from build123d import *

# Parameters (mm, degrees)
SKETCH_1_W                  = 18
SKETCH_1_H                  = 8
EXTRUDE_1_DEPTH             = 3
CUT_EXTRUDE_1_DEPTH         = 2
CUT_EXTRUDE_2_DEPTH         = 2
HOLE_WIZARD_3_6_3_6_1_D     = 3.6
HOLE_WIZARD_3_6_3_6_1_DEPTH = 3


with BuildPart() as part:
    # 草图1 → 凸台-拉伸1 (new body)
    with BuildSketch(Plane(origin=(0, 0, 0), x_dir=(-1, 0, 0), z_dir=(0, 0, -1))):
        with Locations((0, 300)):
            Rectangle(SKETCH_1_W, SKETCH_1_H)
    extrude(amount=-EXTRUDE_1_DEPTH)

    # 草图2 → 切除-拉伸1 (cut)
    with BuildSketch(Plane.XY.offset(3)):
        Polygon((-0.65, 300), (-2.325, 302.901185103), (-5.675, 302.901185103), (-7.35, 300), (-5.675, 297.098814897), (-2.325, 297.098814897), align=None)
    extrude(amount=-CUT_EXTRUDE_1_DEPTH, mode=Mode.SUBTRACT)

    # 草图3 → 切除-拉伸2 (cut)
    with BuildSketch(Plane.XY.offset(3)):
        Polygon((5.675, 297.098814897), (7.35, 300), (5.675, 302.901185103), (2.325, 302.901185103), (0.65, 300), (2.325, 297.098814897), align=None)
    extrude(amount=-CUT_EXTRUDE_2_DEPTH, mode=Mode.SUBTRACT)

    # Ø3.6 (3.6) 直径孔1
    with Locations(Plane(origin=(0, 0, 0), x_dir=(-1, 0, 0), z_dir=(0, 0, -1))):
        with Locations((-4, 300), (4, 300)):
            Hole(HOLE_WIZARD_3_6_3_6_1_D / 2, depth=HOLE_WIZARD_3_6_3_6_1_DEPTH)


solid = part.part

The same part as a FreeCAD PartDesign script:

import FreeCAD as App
import Part
import Sketcher

V = App.Vector
Q = App.Units.Quantity


def add_polygon(sketch, points):
    """Adds a closed chain of lines whose ends are joined by coincident constraints."""
    first, n = sketch.GeometryCount, len(points)
    for a, b in zip(points, points[1:] + points[:1]):
        sketch.addGeometry(Part.LineSegment(App.Vector(*a, 0), App.Vector(*b, 0)), False)
    for i in range(n):
        sketch.addConstraint(Sketcher.Constraint("Coincident", first + i, 2, first + (i + 1) % n, 1))

doc = App.newDocument("Part")
body = doc.addObject("PartDesign::Body", "Body")

sketch1 = body.newObject("Sketcher::SketchObject", "Sketch")
sketch1.AttachmentSupport = (doc.getObject("XY_Plane"), [""])
sketch1.MapMode = "FlatFace"
add_polygon(sketch1, [(9, 304), (9, 296), (-9, 296), (-9, 304)])
sketch1.addConstraint([
    Sketcher.Constraint("Vertical", 0),
    Sketcher.Constraint("Horizontal", 1),
    Sketcher.Constraint("Vertical", 2),
    Sketcher.Constraint("Horizontal", 3),
    Sketcher.Constraint("DistanceX", 1, 2, 1, 1, Q("18 mm")),
    Sketcher.Constraint("DistanceY", 0, 2, 0, 1, Q("8 mm")),
    Sketcher.Constraint("DistanceX", -1, 1, 0, 2, Q("9 mm")),
    Sketcher.Constraint("DistanceY", -1, 1, 0, 2, Q("296 mm")),
])
pad1 = body.newObject("PartDesign::Pad", "Pad")
pad1.Profile = sketch1
pad1.Length = 3

sketch2 = body.newObject("Sketcher::SketchObject", "Sketch001")
sketch2.AttachmentSupport = (doc.getObject("XY_Plane"), [""])
sketch2.MapMode = "FlatFace"
sketch2.AttachmentOffset = App.Placement(V(0, 0, 3), App.Rotation())
add_polygon(sketch2, [(-0.65, 300), (-2.325, 302.901185), (-5.675, 302.901185), (-7.35, 300), (-5.675, 297.098815), (-2.325, 297.098815)])
sketch2.addConstraint([
    Sketcher.Constraint("Horizontal", 1),
    Sketcher.Constraint("Horizontal", 4),
    Sketcher.Constraint("Parallel", 0, 3),
    Sketcher.Constraint("Parallel", 2, 5),
    Sketcher.Constraint("Horizontal", 2, 2, 5, 2),
    Sketcher.Constraint("Vertical", 1, 2, 3, 2),
    Sketcher.Constraint("Vertical", 0, 2, 4, 2),
    Sketcher.Constraint("Angle", 0, Q("120 deg")),
    Sketcher.Constraint("DistanceY", -1, 1, 2, 2, Q("300 mm")),
    Sketcher.Constraint("DistanceX", 1, 2, 1, 1, Q("3.35 mm")),
    Sketcher.Constraint("DistanceX", 2, 2, 5, 2, Q("6.7 mm")),
    Sketcher.Constraint("DistanceX", 2, 2, -1, 1, Q("7.35 mm")),
])
pocket1 = body.newObject("PartDesign::Pocket", "Pocket")
pocket1.Profile = sketch2
pocket1.Length = 2

sketch3 = body.newObject("Sketcher::SketchObject", "Sketch002")
sketch3.AttachmentSupport = (doc.getObject("XY_Plane"), [""])
sketch3.MapMode = "FlatFace"
sketch3.AttachmentOffset = App.Placement(V(0, 0, 3), App.Rotation())
add_polygon(sketch3, [(5.675, 297.098815), (7.35, 300), (5.675, 302.901185), (2.325, 302.901185), (0.65, 300), (2.325, 297.098815)])
sketch3.addConstraint([
    Sketcher.Constraint("Horizontal", 2),
    Sketcher.Constraint("Horizontal", 5),
    Sketcher.Constraint("Parallel", 0, 3),
    Sketcher.Constraint("Parallel", 1, 4),
    Sketcher.Constraint("Horizontal", 0, 2, 3, 2),
    Sketcher.Constraint("Vertical", 2, 2, 4, 2),
    Sketcher.Constraint("Vertical", 1, 2, 5, 2),
    Sketcher.Constraint("Angle", 0, Q("60 deg")),
    Sketcher.Constraint("DistanceY", -1, 1, 0, 2, Q("300 mm")),
    Sketcher.Constraint("DistanceX", 2, 2, 2, 1, Q("3.35 mm")),
    Sketcher.Constraint("DistanceX", 3, 2, 0, 2, Q("6.7 mm")),
    Sketcher.Constraint("DistanceX", -1, 1, 0, 2, Q("7.35 mm")),
])
pocket2 = body.newObject("PartDesign::Pocket", "Pocket001")
pocket2.Profile = sketch3
pocket2.Length = 2

sketch4 = body.newObject("Sketcher::SketchObject", "Sketch003")
sketch4.AttachmentSupport = (doc.getObject("XY_Plane"), [""])
sketch4.MapMode = "FlatFace"
sketch4.addGeometry([
    Part.Circle(V(4, 300, 0), V(0, 0, 1), 1.8),
    Part.Circle(V(-4, 300, 0), V(0, 0, 1), 1.8),
], False)
sketch4.addConstraint([
    Sketcher.Constraint("Equal", 0, 1),
    Sketcher.Constraint("Symmetric", 0, 3, 1, 3, -2),
    Sketcher.Constraint("Diameter", 0, Q("3.6 mm")),
    Sketcher.Constraint("DistanceX", -1, 1, 0, 3, Q("4 mm")),
    Sketcher.Constraint("DistanceY", -1, 1, 0, 3, Q("300 mm")),
])
doc.recompute()
hole = body.newObject("PartDesign::Hole", "Hole")
hole.Profile = sketch4
hole.ThreadType = "None"
hole.Diameter = 3.6
hole.DepthType = "Dimension"
hole.Depth = 3
hole.DrillPoint = "Flat"
hole.Reversed = True

doc.recompute()
